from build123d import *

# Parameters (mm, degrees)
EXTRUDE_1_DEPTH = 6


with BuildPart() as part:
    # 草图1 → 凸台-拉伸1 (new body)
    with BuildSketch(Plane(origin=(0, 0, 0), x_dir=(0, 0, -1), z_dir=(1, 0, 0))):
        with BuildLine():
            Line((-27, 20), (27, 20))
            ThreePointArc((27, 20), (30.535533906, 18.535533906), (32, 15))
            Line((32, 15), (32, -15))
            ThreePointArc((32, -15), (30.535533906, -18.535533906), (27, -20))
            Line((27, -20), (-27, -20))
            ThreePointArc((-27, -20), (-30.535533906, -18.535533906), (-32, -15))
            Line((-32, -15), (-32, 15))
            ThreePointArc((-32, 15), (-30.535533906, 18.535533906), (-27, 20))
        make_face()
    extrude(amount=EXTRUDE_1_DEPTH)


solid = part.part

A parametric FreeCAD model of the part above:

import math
import FreeCAD as App
import Part
import Sketcher
Q = App.Units.Quantity

doc = App.newDocument("Part")
body = doc.addObject("PartDesign::Body", "Body")

# Sketch on YZ plane
sketch1 = body.newObject("Sketcher::SketchObject", "Sketch")
sketch1.AttachmentSupport = (doc.getObject("YZ_Plane"), [""])
sketch1.MapMode = "FlatFace"
sketch1.addGeometry(Part.LineSegment(App.Vector(20, -27, 0), App.Vector(20, 27, 0)), False)
sketch1.addGeometry(Part.ArcOfCircle(Part.Circle(App.Vector(15, 27, 0), App.Vector(0, 0, 1), 5), math.radians(0), math.radians(90)), False)
sketch1.addGeometry(Part.LineSegment(App.Vector(15, 32, 0), App.Vector(-15, 32, 0)), False)
sketch1.addGeometry(Part.ArcOfCircle(Part.Circle(App.Vector(-15, 27, 0), App.Vector(0, 0, 1), 5), math.radians(90), math.radians(180)), False)
sketch1.addGeometry(Part.LineSegment(App.Vector(-20, 27, 0), App.Vector(-20, -27, 0)), False)
sketch1.addGeometry(Part.ArcOfCircle(Part.Circle(App.Vector(-15, -27, 0), App.Vector(0, 0, 1), 5), math.radians(180), math.radians(270)), False)
sketch1.addGeometry(Part.LineSegment(App.Vector(-15, -32, 0), App.Vector(15, -32, 0)), False)
sketch1.addGeometry(Part.ArcOfCircle(Part.Circle(App.Vector(15, -27, 0), App.Vector(0, 0, 1), 5), math.radians(-90), math.radians(0)), False)
sketch1.addConstraint(Sketcher.Constraint("Tangent", 0, 2, 1, 1))
sketch1.addConstraint(Sketcher.Constraint("Tangent", 1, 2, 2, 1))
sketch1.addConstraint(Sketcher.Constraint("Tangent", 2, 2, 3, 1))
sketch1.addConstraint(Sketcher.Constraint("Tangent", 3, 2, 4, 1))
sketch1.addConstraint(Sketcher.Constraint("Tangent", 4, 2, 5, 1))
sketch1.addConstraint(Sketcher.Constraint("Tangent", 5, 2, 6, 1))
sketch1.addConstraint(Sketcher.Constraint("Tangent", 6, 2, 7, 1))
sketch1.addConstraint(Sketcher.Constraint("Tangent", 7, 2, 0, 1))
sketch1.addConstraint(Sketcher.Constraint("Vertical", 0))
sketch1.addConstraint(Sketcher.Constraint("Horizontal", 2))
sketch1.addConstraint(Sketcher.Constraint("Vertical", 4))
sketch1.addConstraint(Sketcher.Constraint("Horizontal", 6))
sketch1.addConstraint(Sketcher.Constraint("Equal", 1, 3))
sketch1.addConstraint(Sketcher.Constraint("Equal", 3, 5))
sketch1.addConstraint(Sketcher.Constraint("Equal", 5, 7))
sketch1.addConstraint(Sketcher.Constraint("Symmetric", 1, 3, 5, 3, -1, 1))
sketch1.addConstraint(Sketcher.Constraint("Radius", 1, Q("5 mm")))
sketch1.addConstraint(Sketcher.Constraint("DistanceX", 2, 2, 2, 1, Q("30 mm")))
sketch1.addConstraint(Sketcher.Constraint("DistanceY", 0, 1, 0, 2, Q("54 mm")))
pad1 = body.newObject("PartDesign::Pad", "Pad")
pad1.Profile = sketch1
pad1.Length = 6

doc.recompute()
